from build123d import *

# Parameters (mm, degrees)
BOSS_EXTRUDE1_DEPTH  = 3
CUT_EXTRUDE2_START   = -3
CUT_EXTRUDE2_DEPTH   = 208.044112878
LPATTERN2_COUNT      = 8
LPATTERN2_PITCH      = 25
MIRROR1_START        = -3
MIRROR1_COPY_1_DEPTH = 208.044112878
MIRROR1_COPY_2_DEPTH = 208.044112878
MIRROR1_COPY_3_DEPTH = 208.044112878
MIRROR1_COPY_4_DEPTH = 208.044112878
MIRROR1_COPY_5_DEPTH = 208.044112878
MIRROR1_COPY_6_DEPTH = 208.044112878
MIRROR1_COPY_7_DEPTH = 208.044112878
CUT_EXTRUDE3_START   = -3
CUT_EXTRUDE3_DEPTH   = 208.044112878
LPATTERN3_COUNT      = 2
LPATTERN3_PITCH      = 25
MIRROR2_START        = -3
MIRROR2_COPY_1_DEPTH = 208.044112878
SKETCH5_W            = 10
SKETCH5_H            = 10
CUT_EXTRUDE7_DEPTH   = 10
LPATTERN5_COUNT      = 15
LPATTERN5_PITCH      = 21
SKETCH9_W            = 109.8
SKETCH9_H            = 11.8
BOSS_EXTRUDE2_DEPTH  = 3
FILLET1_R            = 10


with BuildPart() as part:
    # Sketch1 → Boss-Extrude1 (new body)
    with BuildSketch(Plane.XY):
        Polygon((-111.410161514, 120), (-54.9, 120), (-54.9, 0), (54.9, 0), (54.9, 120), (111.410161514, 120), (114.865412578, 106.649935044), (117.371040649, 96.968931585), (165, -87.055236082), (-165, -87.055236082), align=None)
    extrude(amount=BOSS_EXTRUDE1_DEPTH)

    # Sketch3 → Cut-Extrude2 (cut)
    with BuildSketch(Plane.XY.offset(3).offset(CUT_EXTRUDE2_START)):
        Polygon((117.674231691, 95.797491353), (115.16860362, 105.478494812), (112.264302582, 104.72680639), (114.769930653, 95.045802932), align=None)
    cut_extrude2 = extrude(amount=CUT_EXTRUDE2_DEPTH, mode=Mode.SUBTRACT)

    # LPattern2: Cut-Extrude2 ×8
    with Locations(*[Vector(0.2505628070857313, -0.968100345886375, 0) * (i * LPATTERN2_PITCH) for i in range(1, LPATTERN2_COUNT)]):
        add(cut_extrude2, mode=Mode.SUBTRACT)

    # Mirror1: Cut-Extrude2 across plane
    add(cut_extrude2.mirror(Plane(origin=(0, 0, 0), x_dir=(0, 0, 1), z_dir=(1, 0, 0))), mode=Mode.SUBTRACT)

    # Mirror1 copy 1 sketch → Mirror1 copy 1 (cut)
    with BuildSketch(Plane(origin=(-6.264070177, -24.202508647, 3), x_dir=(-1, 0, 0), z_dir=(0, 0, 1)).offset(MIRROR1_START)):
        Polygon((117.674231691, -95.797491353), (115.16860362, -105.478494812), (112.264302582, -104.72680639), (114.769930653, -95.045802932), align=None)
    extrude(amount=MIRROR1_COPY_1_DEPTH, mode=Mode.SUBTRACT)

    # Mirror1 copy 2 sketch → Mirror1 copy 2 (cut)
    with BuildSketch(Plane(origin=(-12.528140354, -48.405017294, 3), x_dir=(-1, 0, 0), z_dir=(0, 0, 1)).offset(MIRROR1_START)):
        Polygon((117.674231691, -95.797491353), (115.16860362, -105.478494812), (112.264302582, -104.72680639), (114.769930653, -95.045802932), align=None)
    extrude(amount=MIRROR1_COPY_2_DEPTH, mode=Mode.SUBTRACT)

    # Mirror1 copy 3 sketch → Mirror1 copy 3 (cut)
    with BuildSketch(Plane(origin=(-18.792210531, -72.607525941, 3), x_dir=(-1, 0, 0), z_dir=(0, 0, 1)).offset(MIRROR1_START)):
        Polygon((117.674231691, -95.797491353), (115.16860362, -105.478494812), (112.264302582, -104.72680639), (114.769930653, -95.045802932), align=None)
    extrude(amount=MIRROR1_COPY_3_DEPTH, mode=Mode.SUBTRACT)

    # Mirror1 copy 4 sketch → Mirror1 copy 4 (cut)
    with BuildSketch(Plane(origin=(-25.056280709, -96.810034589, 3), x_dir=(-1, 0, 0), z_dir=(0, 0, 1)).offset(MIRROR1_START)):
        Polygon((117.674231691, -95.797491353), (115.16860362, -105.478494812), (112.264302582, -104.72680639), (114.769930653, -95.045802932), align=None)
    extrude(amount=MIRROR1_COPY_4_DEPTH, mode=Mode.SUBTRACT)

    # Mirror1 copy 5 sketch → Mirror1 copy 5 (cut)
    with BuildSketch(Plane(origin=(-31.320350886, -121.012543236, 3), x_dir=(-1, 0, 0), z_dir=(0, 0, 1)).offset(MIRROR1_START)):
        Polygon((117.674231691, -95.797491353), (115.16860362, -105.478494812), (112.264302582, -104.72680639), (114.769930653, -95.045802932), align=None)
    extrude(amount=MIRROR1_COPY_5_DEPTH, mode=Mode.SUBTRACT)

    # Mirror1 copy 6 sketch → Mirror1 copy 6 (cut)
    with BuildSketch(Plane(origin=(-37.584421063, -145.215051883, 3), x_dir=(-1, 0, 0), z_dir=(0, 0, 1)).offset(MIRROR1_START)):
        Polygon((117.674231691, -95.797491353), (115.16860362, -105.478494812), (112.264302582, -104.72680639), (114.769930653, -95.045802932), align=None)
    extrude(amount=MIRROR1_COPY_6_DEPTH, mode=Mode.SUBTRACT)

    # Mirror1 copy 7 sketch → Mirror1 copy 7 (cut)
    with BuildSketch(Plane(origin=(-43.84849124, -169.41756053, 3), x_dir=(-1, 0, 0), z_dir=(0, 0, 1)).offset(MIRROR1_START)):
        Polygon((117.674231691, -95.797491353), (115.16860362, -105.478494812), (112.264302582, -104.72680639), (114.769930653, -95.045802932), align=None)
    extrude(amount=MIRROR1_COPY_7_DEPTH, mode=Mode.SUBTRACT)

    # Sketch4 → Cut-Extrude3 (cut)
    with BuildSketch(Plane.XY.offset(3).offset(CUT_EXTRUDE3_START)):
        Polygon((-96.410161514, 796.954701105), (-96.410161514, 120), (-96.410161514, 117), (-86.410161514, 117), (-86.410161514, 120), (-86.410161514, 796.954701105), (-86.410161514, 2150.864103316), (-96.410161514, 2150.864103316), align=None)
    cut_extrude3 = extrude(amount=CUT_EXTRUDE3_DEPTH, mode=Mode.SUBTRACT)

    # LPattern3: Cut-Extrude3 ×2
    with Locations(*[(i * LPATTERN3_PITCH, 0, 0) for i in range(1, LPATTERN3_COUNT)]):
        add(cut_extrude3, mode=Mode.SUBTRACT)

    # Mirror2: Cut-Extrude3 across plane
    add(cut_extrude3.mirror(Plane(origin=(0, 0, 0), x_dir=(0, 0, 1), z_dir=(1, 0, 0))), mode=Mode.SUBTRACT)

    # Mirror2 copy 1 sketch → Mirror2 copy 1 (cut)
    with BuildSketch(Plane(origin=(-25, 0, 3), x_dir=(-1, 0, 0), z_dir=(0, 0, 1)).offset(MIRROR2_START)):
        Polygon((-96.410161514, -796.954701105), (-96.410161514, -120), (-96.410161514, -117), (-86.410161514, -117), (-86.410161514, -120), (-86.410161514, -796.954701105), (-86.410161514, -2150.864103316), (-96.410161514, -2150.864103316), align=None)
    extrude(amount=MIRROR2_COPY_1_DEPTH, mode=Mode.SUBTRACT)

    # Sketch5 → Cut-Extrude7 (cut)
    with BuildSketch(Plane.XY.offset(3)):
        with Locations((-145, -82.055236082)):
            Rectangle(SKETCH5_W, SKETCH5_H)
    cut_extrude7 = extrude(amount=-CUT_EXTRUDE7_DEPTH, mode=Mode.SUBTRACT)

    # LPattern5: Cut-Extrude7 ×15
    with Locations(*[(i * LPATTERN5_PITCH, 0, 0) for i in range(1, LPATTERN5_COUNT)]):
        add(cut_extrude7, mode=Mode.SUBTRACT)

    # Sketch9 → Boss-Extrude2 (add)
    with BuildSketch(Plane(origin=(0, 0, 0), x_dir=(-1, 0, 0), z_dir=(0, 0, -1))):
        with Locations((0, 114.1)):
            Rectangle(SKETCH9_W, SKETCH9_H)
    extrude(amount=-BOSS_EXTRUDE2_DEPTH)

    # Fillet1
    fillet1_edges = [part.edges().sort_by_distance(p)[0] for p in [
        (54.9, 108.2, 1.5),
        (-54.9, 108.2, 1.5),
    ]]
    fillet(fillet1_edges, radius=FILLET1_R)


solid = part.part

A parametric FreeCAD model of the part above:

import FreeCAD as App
import Part
import Sketcher
from FreeCAD import Vector
Q = App.Units.Quantity


def edges_at(feature, points):
    """Names of the edges that pass closest to the given points."""
    edges = feature.Shape.Edges
    near = lambda p: min(range(len(edges)), key=lambda i: edges[i].distToShape(Part.Vertex(*p))[0])
    return sorted({f"Edge{near(p) + 1}" for p in points})

doc = App.newDocument("Part")
body = doc.addObject("PartDesign::Body", "Body")

sketch1 = doc.addObject("Sketcher::SketchObject", "Sketch")
body.addObject(sketch1)
sketch1.AttachmentSupport = (doc.XY_Plane, [""])
sketch1.MapMode = "FlatFace"
sketch1.addGeometry(Part.LineSegment(Vector(-54.9, 120, 0), Vector(-111.410162, 120, 0)), False)
sketch1.addGeometry(Part.LineSegment(Vector(-111.410162, 120, 0), Vector(-165, -87.055236, 0)), False)
sketch1.addGeometry(Part.LineSegment(Vector(-165, -87.055236, 0), Vector(165, -87.055236, 0)), False)
sketch1.addGeometry(Part.LineSegment(Vector(165, -87.055236, 0), Vector(117.371041, 96.968932, 0)), False)
sketch1.addGeometry(Part.LineSegment(Vector(117.371041, 96.968932, 0), Vector(114.865413, 106.649935, 0)), False)
sketch1.addGeometry(Part.LineSegment(Vector(114.865413, 106.649935, 0), Vector(111.410162, 120, 0)), False)
sketch1.addGeometry(Part.LineSegment(Vector(111.410162, 120, 0), Vector(54.9, 120, 0)), False)
sketch1.addGeometry(Part.LineSegment(Vector(54.9, 120, 0), Vector(54.9, 0, 0)), False)
sketch1.addGeometry(Part.LineSegment(Vector(54.9, 0, 0), Vector(-54.9, 0, 0)), False)
sketch1.addGeometry(Part.LineSegment(Vector(-54.9, 0, 0), Vector(-54.9, 120, 0)), False)
sketch1.addConstraint(Sketcher.Constraint("Coincident", 0, 2, 1, 1))
sketch1.addConstraint(Sketcher.Constraint("Coincident", 1, 2, 2, 1))
sketch1.addConstraint(Sketcher.Constraint("Coincident", 2, 2, 3, 1))
sketch1.addConstraint(Sketcher.Constraint("Coincident", 3, 2, 4, 1))
sketch1.addConstraint(Sketcher.Constraint("Coincident", 4, 2, 5, 1))
sketch1.addConstraint(Sketcher.Constraint("Coincident", 5, 2, 6, 1))
sketch1.addConstraint(Sketcher.Constraint("Coincident", 6, 2, 7, 1))
sketch1.addConstraint(Sketcher.Constraint("Coincident", 7, 2, 8, 1))
sketch1.addConstraint(Sketcher.Constraint("Coincident", 8, 2, 9, 1))
sketch1.addConstraint(Sketcher.Constraint("Coincident", 9, 2, 0, 1))
sketch1.addConstraint(Sketcher.Constraint("Horizontal", 0))
sketch1.addConstraint(Sketcher.Constraint("Horizontal", 2))
sketch1.addConstraint(Sketcher.Constraint("Horizontal", 6))
sketch1.addConstraint(Sketcher.Constraint("Vertical", 7))
sketch1.addConstraint(Sketcher.Constraint("Horizontal", 8))
sketch1.addConstraint(Sketcher.Constraint("Vertical", 9))
sketch1.addConstraint(Sketcher.Constraint("Symmetric", 7, 2, 8, 2, -1, 1))
sketch1.addConstraint(Sketcher.Constraint("Symmetric", 0, 2, 5, 2, -2))
sketch1.addConstraint(Sketcher.Constraint("Parallel", 3, 4))
sketch1.addConstraint(Sketcher.Constraint("Parallel", 4, 5))
sketch1.addConstraint(Sketcher.Constraint("DistanceX", 2, 1, 2, 2, Q("330 mm")))
sketch1.addConstraint(Sketcher.Constraint("DistanceY", 7, 2, 7, 1, Q("120 mm")))
sketch1.addConstraint(Sketcher.Constraint("Distance", 4, Q("10 mm")))
sketch1.addConstraint(Sketcher.Constraint("DistanceX", 8, 2, 8, 1, Q("109.8 mm")))
sketch1.addConstraint(Sketcher.Constraint("DistanceX", 1, 2, -1, 1, Q("165 mm")))
sketch1.addConstraint(Sketcher.Constraint("DistanceX", 0, 2, 0, 1, Q("56.510162 mm")))
sketch1.addConstraint(Sketcher.Constraint("Distance", 5, Q("13.78996 mm")))
sketch1.addConstraint(Sketcher.Constraint("DistanceX", -1, 1, 3, 2, Q("117.371041 mm")))
pad1 = doc.addObject("PartDesign::Pad", "Pad")
body.addObject(pad1)
pad1.Profile = sketch1
pad1.Length = 3

sketch2 = doc.addObject("Sketcher::SketchObject", "Sketch001")
body.addObject(sketch2)
sketch2.AttachmentSupport = (doc.XY_Plane, [""])
sketch2.MapMode = "FlatFace"
sketch2.addGeometry(Part.LineSegment(Vector(117.674232, 95.797491, 0), Vector(115.168604, 105.478495, 0)), False)
sketch2.addGeometry(Part.LineSegment(Vector(115.168604, 105.478495, 0), Vector(112.264303, 104.726806, 0)), False)
sketch2.addGeometry(Part.LineSegment(Vector(112.264303, 104.726806, 0), Vector(114.769931, 95.045803, 0)), False)
sketch2.addGeometry(Part.LineSegment(Vector(114.769931, 95.045803, 0), Vector(117.674232, 95.797491, 0)), False)
sketch2.addConstraint(Sketcher.Constraint("Coincident", 0, 2, 1, 1))
sketch2.addConstraint(Sketcher.Constraint("Coincident", 1, 2, 2, 1))
sketch2.addConstraint(Sketcher.Constraint("Coincident", 2, 2, 3, 1))
sketch2.addConstraint(Sketcher.Constraint("Coincident", 3, 2, 0, 1))
sketch2.addConstraint(Sketcher.Constraint("Perpendicular", 0, 1))
sketch2.addConstraint(Sketcher.Constraint("Perpendicular", 1, 2))
sketch2.addConstraint(Sketcher.Constraint("Perpendicular", 2, 3))
sketch2.addConstraint(Sketcher.Constraint("Distance", 0, Q("10 mm")))
sketch2.addConstraint(Sketcher.Constraint("Distance", 1, Q("3 mm")))
sketch2.addConstraint(Sketcher.Constraint("DistanceX", 1, 2, 0, 2, Q("2.904301 mm")))
sketch2.addConstraint(Sketcher.Constraint("DistanceX", -1, 1, 2, 2, Q("114.769931 mm")))
sketch2.addConstraint(Sketcher.Constraint("DistanceY", -1, 1, 3, 2, Q("95.797491 mm")))
pocket1 = doc.addObject("PartDesign::Pocket", "Pocket")
body.addObject(pocket1)
pocket1.Profile = sketch2
pocket1.Length = 208.044113
pocket1.Reversed = True
doc.recompute()

datumline = doc.addObject("PartDesign::Line", "DatumLine")
body.addObject(datumline)
datumline.Placement = App.Placement(Vector(0, 0, 0), App.Rotation(Vector(0, 0, 1), Vector(0.250562807, -0.968100346, 0)))
linearpattern = doc.addObject("PartDesign::LinearPattern", "LinearPattern")
body.addObject(linearpattern)
linearpattern.Originals = [pocket1]
linearpattern.Direction = (datumline, [""])
linearpattern.Mode = "offset"
linearpattern.Offset = 25
linearpattern.Occurrences = 8
body.Tip = linearpattern
doc.recompute()

mirrored = doc.addObject("PartDesign::Mirrored", "Mirrored")
body.addObject(mirrored)
mirrored.Originals = [pocket1]
mirrored.MirrorPlane = (doc.YZ_Plane, [""])
body.Tip = mirrored

sketch3 = doc.addObject("Sketcher::SketchObject", "Sketch002")
body.addObject(sketch3)
sketch3.AttachmentSupport = (doc.XY_Plane, [""])
sketch3.MapMode = "FlatFace"
sketch3.addGeometry(Part.LineSegment(Vector(-121.432674, 81.275986, 0), Vector(-123.938302, 71.594983, 0)), False)
sketch3.addGeometry(Part.LineSegment(Vector(-123.938302, 71.594983, 0), Vector(-121.034001, 70.843294, 0)), False)
sketch3.addGeometry(Part.LineSegment(Vector(-121.034001, 70.843294, 0), Vector(-118.528373, 80.524298, 0)), False)
sketch3.addGeometry(Part.LineSegment(Vector(-118.528373, 80.524298, 0), Vector(-121.432674, 81.275986, 0)), False)
sketch3.addConstraint(Sketcher.Constraint("Coincident", 0, 2, 1, 1))
sketch3.addConstraint(Sketcher.Constraint("Coincident", 1, 2, 2, 1))
sketch3.addConstraint(Sketcher.Constraint("Coincident", 2, 2, 3, 1))
sketch3.addConstraint(Sketcher.Constraint("Coincident", 3, 2, 0, 1))
sketch3.addConstraint(Sketcher.Constraint("Perpendicular", 0, 1))
sketch3.addConstraint(Sketcher.Constraint("Perpendicular", 1, 2))
sketch3.addConstraint(Sketcher.Constraint("Perpendicular", 2, 3))
sketch3.addConstraint(Sketcher.Constraint("Distance", 0, Q("10 mm")))
sketch3.addConstraint(Sketcher.Constraint("Distance", 1, Q("3 mm")))
sketch3.addConstraint(Sketcher.Constraint("DistanceX", 1, 2, -1, 1, Q("121.034001 mm")))
sketch3.addConstraint(Sketcher.Constraint("DistanceX", 0, 2, -1, 1, Q("123.938302 mm")))
sketch3.addConstraint(Sketcher.Constraint("DistanceY", -1, 1, 0, 2, Q("71.594983 mm")))
pocket2 = doc.addObject("PartDesign::Pocket", "Pocket001")
body.addObject(pocket2)
pocket2.Profile = sketch3
pocket2.Length = 208.044113
pocket2.Reversed = True

sketch4 = doc.addObject("Sketcher::SketchObject", "Sketch003")
body.addObject(sketch4)
sketch4.AttachmentSupport = (doc.XY_Plane, [""])
sketch4.MapMode = "FlatFace"
sketch4.addGeometry(Part.LineSegment(Vector(-127.696744, 57.073478, 0), Vector(-130.202372, 47.392474, 0)), False)
sketch4.addGeometry(Part.LineSegment(Vector(-130.202372, 47.392474, 0), Vector(-127.298071, 46.640786, 0)), False)
sketch4.addGeometry(Part.LineSegment(Vector(-127.298071, 46.640786, 0), Vector(-124.792443, 56.321789, 0)), False)
sketch4.addGeometry(Part.LineSegment(Vector(-124.792443, 56.321789, 0), Vector(-127.696744, 57.073478, 0)), False)
sketch4.addConstraint(Sketcher.Constraint("Coincident", 0, 2, 1, 1))
sketch4.addConstraint(Sketcher.Constraint("Coincident", 1, 2, 2, 1))
sketch4.addConstraint(Sketcher.Constraint("Coincident", 2, 2, 3, 1))
sketch4.addConstraint(Sketcher.Constraint("Coincident", 3, 2, 0, 1))
sketch4.addConstraint(Sketcher.Constraint("Perpendicular", 0, 1))
sketch4.addConstraint(Sketcher.Constraint("Perpendicular", 1, 2))
sketch4.addConstraint(Sketcher.Constraint("Perpendicular", 2, 3))
sketch4.addConstraint(Sketcher.Constraint("Distance", 0, Q("10 mm")))
sketch4.addConstraint(Sketcher.Constraint("Distance", 1, Q("3 mm")))
sketch4.addConstraint(Sketcher.Constraint("DistanceX", 0, 2, 1, 2, Q("2.904301 mm")))
sketch4.addConstraint(Sketcher.Constraint("DistanceX", 1, 2, -1, 1, Q("127.298071 mm")))
sketch4.addConstraint(Sketcher.Constraint("DistanceY", -1, 1, 2, 2, Q("56.321789 mm")))
pocket3 = doc.addObject("PartDesign::Pocket", "Pocket002")
body.addObject(pocket3)
pocket3.Profile = sketch4
pocket3.Length = 208.044113
pocket3.Reversed = True

sketch5 = doc.addObject("Sketcher::SketchObject", "Sketch004")
body.addObject(sketch5)
sketch5.AttachmentSupport = (doc.XY_Plane, [""])
sketch5.MapMode = "FlatFace"
sketch5.addGeometry(Part.LineSegment(Vector(-133.960814, 32.870969, 0), Vector(-136.466442, 23.189965, 0)), False)
sketch5.addGeometry(Part.LineSegment(Vector(-136.466442, 23.189965, 0), Vector(-133.562141, 22.438277, 0)), False)
sketch5.addGeometry(Part.LineSegment(Vector(-133.562141, 22.438277, 0), Vector(-131.056513, 32.11928, 0)), False)
sketch5.addGeometry(Part.LineSegment(Vector(-131.056513, 32.11928, 0), Vector(-133.960814, 32.870969, 0)), False)
sketch5.addConstraint(Sketcher.Constraint("Coincident", 0, 2, 1, 1))
sketch5.addConstraint(Sketcher.Constraint("Coincident", 1, 2, 2, 1))
sketch5.addConstraint(Sketcher.Constraint("Coincident", 2, 2, 3, 1))
sketch5.addConstraint(Sketcher.Constraint("Coincident", 3, 2, 0, 1))
sketch5.addConstraint(Sketcher.Constraint("Perpendicular", 0, 1))
sketch5.addConstraint(Sketcher.Constraint("Perpendicular", 1, 2))
sketch5.addConstraint(Sketcher.Constraint("Perpendicular", 2, 3))
sketch5.addConstraint(Sketcher.Constraint("Distance", 0, Q("10 mm")))
sketch5.addConstraint(Sketcher.Constraint("Distance", 1, Q("3 mm")))
sketch5.addConstraint(Sketcher.Constraint("DistanceX", 0, 2, 1, 2, Q("2.904301 mm")))
sketch5.addConstraint(Sketcher.Constraint("DistanceX", 1, 2, -1, 1, Q("133.562141 mm")))
sketch5.addConstraint(Sketcher.Constraint("DistanceY", -1, 1, 2, 2, Q("32.11928 mm")))
pocket4 = doc.addObject("PartDesign::Pocket", "Pocket003")
body.addObject(pocket4)
pocket4.Profile = sketch5
pocket4.Length = 208.044113
pocket4.Reversed = True

sketch6 = doc.addObject("Sketcher::SketchObject", "Sketch005")
body.addObject(sketch6)
sketch6.AttachmentSupport = (doc.XY_Plane, [""])
sketch6.MapMode = "FlatFace"
sketch6.addGeometry(Part.LineSegment(Vector(-140.224884, 8.66846, 0), Vector(-142.730512, -1.012543, 0)), False)
sketch6.addGeometry(Part.LineSegment(Vector(-142.730512, -1.012543, 0), Vector(-139.826211, -1.764232, 0)), False)
sketch6.addGeometry(Part.LineSegment(Vector(-139.826211, -1.764232, 0), Vector(-137.320583, 7.916772, 0)), False)
sketch6.addGeometry(Part.LineSegment(Vector(-137.320583, 7.916772, 0), Vector(-140.224884, 8.66846, 0)), False)
sketch6.addConstraint(Sketcher.Constraint("Coincident", 0, 2, 1, 1))
sketch6.addConstraint(Sketcher.Constraint("Coincident", 1, 2, 2, 1))
sketch6.addConstraint(Sketcher.Constraint("Coincident", 2, 2, 3, 1))
sketch6.addConstraint(Sketcher.Constraint("Coincident", 3, 2, 0, 1))
sketch6.addConstraint(Sketcher.Constraint("Perpendicular", 0, 1))
sketch6.addConstraint(Sketcher.Constraint("Perpendicular", 1, 2))
sketch6.addConstraint(Sketcher.Constraint("Perpendicular", 2, 3))
sketch6.addConstraint(Sketcher.Constraint("Distance", 0, Q("10 mm")))
sketch6.addConstraint(Sketcher.Constraint("Distance", 1, Q("3 mm")))
sketch6.addConstraint(Sketcher.Constraint("DistanceX", 0, 2, 1, 2, Q("2.904301 mm")))
sketch6.addConstraint(Sketcher.Constraint("DistanceX", 1, 2, -1, 1, Q("139.826211 mm")))
sketch6.addConstraint(Sketcher.Constraint("DistanceY", 1, 2, -1, 1, Q("1.764232 mm")))
pocket5 = doc.addObject("PartDesign::Pocket", "Pocket004")
body.addObject(pocket5)
pocket5.Profile = sketch6
pocket5.Length = 208.044113
pocket5.Reversed = True

sketch7 = doc.addObject("Sketcher::SketchObject", "Sketch006")
body.addObject(sketch7)
sketch7.AttachmentSupport = (doc.XY_Plane, [""])
sketch7.MapMode = "FlatFace"
sketch7.addGeometry(Part.LineSegment(Vector(-146.488955, -15.534048, 0), Vector(-148.994583, -25.215052, 0)), False)
sketch7.addGeometry(Part.LineSegment(Vector(-148.994583, -25.215052, 0), Vector(-146.090282, -25.96674, 0)), False)
sketch7.addGeometry(Part.LineSegment(Vector(-146.090282, -25.96674, 0), Vector(-143.584653, -16.285737, 0)), False)
sketch7.addGeometry(Part.LineSegment(Vector(-143.584653, -16.285737, 0), Vector(-146.488955, -15.534048, 0)), False)
sketch7.addConstraint(Sketcher.Constraint("Coincident", 0, 2, 1, 1))
sketch7.addConstraint(Sketcher.Constraint("Coincident", 1, 2, 2, 1))
sketch7.addConstraint(Sketcher.Constraint("Coincident", 2, 2, 3, 1))
sketch7.addConstraint(Sketcher.Constraint("Coincident", 3, 2, 0, 1))
sketch7.addConstraint(Sketcher.Constraint("Perpendicular", 0, 1))
sketch7.addConstraint(Sketcher.Constraint("Perpendicular", 1, 2))
sketch7.addConstraint(Sketcher.Constraint("Perpendicular", 2, 3))
sketch7.addConstraint(Sketcher.Constraint("Distance", 0, Q("10 mm")))
sketch7.addConstraint(Sketcher.Constraint("Distance", 1, Q("3 mm")))
sketch7.addConstraint(Sketcher.Constraint("DistanceX", 0, 2, 1, 2, Q("2.904301 mm")))
sketch7.addConstraint(Sketcher.Constraint("DistanceY", 0, 2, -1, 1, Q("25.215052 mm")))
sketch7.addConstraint(Sketcher.Constraint("DistanceX", 1, 2, -1, 1, Q("146.090282 mm")))
pocket6 = doc.addObject("PartDesign::Pocket", "Pocket005")
body.addObject(pocket6)
pocket6.Profile = sketch7
pocket6.Length = 208.044113
pocket6.Reversed = True

sketch8 = doc.addObject("Sketcher::SketchObject", "Sketch007")
body.addObject(sketch8)
sketch8.AttachmentSupport = (doc.XY_Plane, [""])
sketch8.MapMode = "FlatFace"
sketch8.addGeometry(Part.LineSegment(Vector(-152.753025, -39.736557, 0), Vector(-155.258653, -49.417561, 0)), False)
sketch8.addGeometry(Part.LineSegment(Vector(-155.258653, -49.417561, 0), Vector(-152.354352, -50.169249, 0)), False)
sketch8.addGeometry(Part.LineSegment(Vector(-152.354352, -50.169249, 0), Vector(-149.848724, -40.488245, 0)), False)
sketch8.addGeometry(Part.LineSegment(Vector(-149.848724, -40.488245, 0), Vector(-152.753025, -39.736557, 0)), False)
sketch8.addConstraint(Sketcher.Constraint("Coincident", 0, 2, 1, 1))
sketch8.addConstraint(Sketcher.Constraint("Coincident", 1, 2, 2, 1))
sketch8.addConstraint(Sketcher.Constraint("Coincident", 2, 2, 3, 1))
sketch8.addConstraint(Sketcher.Constraint("Coincident", 3, 2, 0, 1))
sketch8.addConstraint(Sketcher.Constraint("Perpendicular", 0, 1))
sketch8.addConstraint(Sketcher.Constraint("Perpendicular", 1, 2))
sketch8.addConstraint(Sketcher.Constraint("Perpendicular", 2, 3))
sketch8.addConstraint(Sketcher.Constraint("Distance", 0, Q("10 mm")))
sketch8.addConstraint(Sketcher.Constraint("Distance", 1, Q("3 mm")))
sketch8.addConstraint(Sketcher.Constraint("DistanceX", 0, 2, 1, 2, Q("2.904301 mm")))
sketch8.addConstraint(Sketcher.Constraint("DistanceY", 0, 2, -1, 1, Q("49.417561 mm")))
sketch8.addConstraint(Sketcher.Constraint("DistanceX", 1, 2, -1, 1, Q("152.354352 mm")))
pocket7 = doc.addObject("PartDesign::Pocket", "Pocket006")
body.addObject(pocket7)
pocket7.Profile = sketch8
pocket7.Length = 208.044113
pocket7.Reversed = True

sketch9 = doc.addObject("Sketcher::SketchObject", "Sketch008")
body.addObject(sketch9)
sketch9.AttachmentSupport = (doc.XY_Plane, [""])
sketch9.MapMode = "FlatFace"
sketch9.addGeometry(Part.LineSegment(Vector(-159.017095, -63.939066, 0), Vector(-161.522723, -73.620069, 0)), False)
sketch9.addGeometry(Part.LineSegment(Vector(-161.522723, -73.620069, 0), Vector(-158.618422, -74.371758, 0)), False)
sketch9.addGeometry(Part.LineSegment(Vector(-158.618422, -74.371758, 0), Vector(-156.112794, -64.690754, 0)), False)
sketch9.addGeometry(Part.LineSegment(Vector(-156.112794, -64.690754, 0), Vector(-159.017095, -63.939066, 0)), False)
sketch9.addConstraint(Sketcher.Constraint("Coincident", 0, 2, 1, 1))
sketch9.addConstraint(Sketcher.Constraint("Coincident", 1, 2, 2, 1))
sketch9.addConstraint(Sketcher.Constraint("Coincident", 2, 2, 3, 1))
sketch9.addConstraint(Sketcher.Constraint("Coincident", 3, 2, 0, 1))
sketch9.addConstraint(Sketcher.Constraint("Perpendicular", 0, 1))
sketch9.addConstraint(Sketcher.Constraint("Perpendicular", 1, 2))
sketch9.addConstraint(Sketcher.Constraint("Perpendicular", 2, 3))
sketch9.addConstraint(Sketcher.Constraint("Distance", 0, Q("10 mm")))
sketch9.addConstraint(Sketcher.Constraint("Distance", 1, Q("3 mm")))
sketch9.addConstraint(Sketcher.Constraint("DistanceX", 0, 2, 1, 2, Q("2.904301 mm")))
sketch9.addConstraint(Sketcher.Constraint("DistanceY", 0, 2, -1, 1, Q("73.620069 mm")))
sketch9.addConstraint(Sketcher.Constraint("DistanceX", 1, 2, -1, 1, Q("158.618422 mm")))
pocket8 = doc.addObject("PartDesign::Pocket", "Pocket007")
body.addObject(pocket8)
pocket8.Profile = sketch9
pocket8.Length = 208.044113
pocket8.Reversed = True

sketch10 = doc.addObject("Sketcher::SketchObject", "Sketch009")
body.addObject(sketch10)
sketch10.AttachmentSupport = (doc.XY_Plane, [""])
sketch10.MapMode = "FlatFace"
sketch10.addGeometry(Part.LineSegment(Vector(-96.410162, 117, 0), Vector(-86.410162, 117, 0)), False)
sketch10.addGeometry(Part.LineSegment(Vector(-86.410162, 117, 0), Vector(-86.410162, 2150.864103, 0)), False)
sketch10.addGeometry(Part.LineSegment(Vector(-86.410162, 2150.864103, 0), Vector(-96.410162, 2150.864103, 0)), False)
sketch10.addGeometry(Part.LineSegment(Vector(-96.410162, 2150.864103, 0), Vector(-96.410162, 117, 0)), False)
sketch10.addConstraint(Sketcher.Constraint("Coincident", 0, 2, 1, 1))
sketch10.addConstraint(Sketcher.Constraint("Coincident", 1, 2, 2, 1))
sketch10.addConstraint(Sketcher.Constraint("Coincident", 2, 2, 3, 1))
sketch10.addConstraint(Sketcher.Constraint("Coincident", 3, 2, 0, 1))
sketch10.addConstraint(Sketcher.Constraint("Horizontal", 0))
sketch10.addConstraint(Sketcher.Constraint("Vertical", 1))
sketch10.addConstraint(Sketcher.Constraint("Horizontal", 2))
sketch10.addConstraint(Sketcher.Constraint("Vertical", 3))
sketch10.addConstraint(Sketcher.Constraint("DistanceX", 0, 1, 0, 2, Q("10 mm")))
sketch10.addConstraint(Sketcher.Constraint("DistanceY", -1, 1, 0, 2, Q("117 mm")))
sketch10.addConstraint(Sketcher.Constraint("DistanceY", 1, 1, 1, 2, Q("2033.864103 mm")))
sketch10.addConstraint(Sketcher.Constraint("DistanceX", 0, 2, -1, 1, Q("86.410162 mm")))
pocket9 = doc.addObject("PartDesign::Pocket", "Pocket008")
body.addObject(pocket9)
pocket9.Profile = sketch10
pocket9.Length = 208.044113
pocket9.Reversed = True
doc.recompute()

linearpattern2 = doc.addObject("PartDesign::LinearPattern", "LinearPattern001")
body.addObject(linearpattern2)
linearpattern2.Originals = [pocket9]
linearpattern2.Direction = (doc.X_Axis, [""])
linearpattern2.Mode = "offset"
linearpattern2.Offset = 25
linearpattern2.Occurrences = 2
body.Tip = linearpattern2
doc.recompute()

mirrored2 = doc.addObject("PartDesign::Mirrored", "Mirrored001")
body.addObject(mirrored2)
mirrored2.Originals = [pocket9]
mirrored2.MirrorPlane = (doc.YZ_Plane, [""])
body.Tip = mirrored2

sketch11 = doc.addObject("Sketcher::SketchObject", "Sketch010")
body.addObject(sketch11)
sketch11.AttachmentSupport = (doc.XY_Plane, [""])
sketch11.MapMode = "FlatFace"
sketch11.addGeometry(Part.LineSegment(Vector(71.410162, 117, 0), Vector(71.410162, 2150.864103, 0)), False)
sketch11.addGeometry(Part.LineSegment(Vector(71.410162, 2150.864103, 0), Vector(61.410162, 2150.864103, 0)), False)
sketch11.addGeometry(Part.LineSegment(Vector(61.410162, 2150.864103, 0), Vector(61.410162, 117, 0)), False)
sketch11.addGeometry(Part.LineSegment(Vector(61.410162, 117, 0), Vector(71.410162, 117, 0)), False)
sketch11.addConstraint(Sketcher.Constraint("Coincident", 0, 2, 1, 1))
sketch11.addConstraint(Sketcher.Constraint("Coincident", 1, 2, 2, 1))
sketch11.addConstraint(Sketcher.Constraint("Coincident", 2, 2, 3, 1))
sketch11.addConstraint(Sketcher.Constraint("Coincident", 3, 2, 0, 1))
sketch11.addConstraint(Sketcher.Constraint("Vertical", 0))
sketch11.addConstraint(Sketcher.Constraint("Horizontal", 1))
sketch11.addConstraint(Sketcher.Constraint("Vertical", 2))
sketch11.addConstraint(Sketcher.Constraint("Horizontal", 3))
sketch11.addConstraint(Sketcher.Constraint("DistanceX", 1, 2, 1, 1, Q("10 mm")))
sketch11.addConstraint(Sketcher.Constraint("DistanceY", -1, 1, 2, 2, Q("117 mm")))
sketch11.addConstraint(Sketcher.Constraint("DistanceY", 0, 1, 0, 2, Q("2033.864103 mm")))
sketch11.addConstraint(Sketcher.Constraint("DistanceX", -1, 1, 0, 2, Q("71.410162 mm")))
pocket10 = doc.addObject("PartDesign::Pocket", "Pocket009")
body.addObject(pocket10)
pocket10.Profile = sketch11
pocket10.Length = 208.044113
pocket10.Reversed = True

sketch12 = doc.addObject("Sketcher::SketchObject", "Sketch011")
body.addObject(sketch12)
sketch12.AttachmentSupport = (doc.XY_Plane, [""])
sketch12.MapMode = "FlatFace"
sketch12.AttachmentOffset = App.Placement(Vector(0, 0, 3), App.Rotation())
sketch12.addGeometry(Part.LineSegment(Vector(-150, -77.055236, 0), Vector(-150, -87.055236, 0)), False)
sketch12.addGeometry(Part.LineSegment(Vector(-150, -87.055236, 0), Vector(-140, -87.055236, 0)), False)
sketch12.addGeometry(Part.LineSegment(Vector(-140, -87.055236, 0), Vector(-140, -77.055236, 0)), False)
sketch12.addGeometry(Part.LineSegment(Vector(-140, -77.055236, 0), Vector(-150, -77.055236, 0)), False)
sketch12.addConstraint(Sketcher.Constraint("Coincident", 0, 2, 1, 1))
sketch12.addConstraint(Sketcher.Constraint("Coincident", 1, 2, 2, 1))
sketch12.addConstraint(Sketcher.Constraint("Coincident", 2, 2, 3, 1))
sketch12.addConstraint(Sketcher.Constraint("Coincident", 3, 2, 0, 1))
sketch12.addConstraint(Sketcher.Constraint("Vertical", 0))
sketch12.addConstraint(Sketcher.Constraint("Horizontal", 1))
sketch12.addConstraint(Sketcher.Constraint("Vertical", 2))
sketch12.addConstraint(Sketcher.Constraint("Horizontal", 3))
sketch12.addConstraint(Sketcher.Constraint("Equal", 3, 0))
sketch12.addConstraint(Sketcher.Constraint("DistanceX", 1, 1, 1, 2, Q("10 mm")))
sketch12.addConstraint(Sketcher.Constraint("DistanceX", 0, 2, -1, 1, Q("150 mm")))
sketch12.addConstraint(Sketcher.Constraint("DistanceY", 0, 2, -1, 1, Q("87.055236 mm")))
pocket11 = doc.addObject("PartDesign::Pocket", "Pocket010")
body.addObject(pocket11)
pocket11.Profile = sketch12
pocket11.Length = 10
doc.recompute()

linearpattern3 = doc.addObject("PartDesign::LinearPattern", "LinearPattern002")
body.addObject(linearpattern3)
linearpattern3.Originals = [pocket11]
linearpattern3.Direction = (doc.X_Axis, [""])
linearpattern3.Mode = "offset"
linearpattern3.Offset = 21
linearpattern3.Occurrences = 15
body.Tip = linearpattern3

sketch13 = doc.addObject("Sketcher::SketchObject", "Sketch012")
body.addObject(sketch13)
sketch13.AttachmentSupport = (doc.XY_Plane, [""])
sketch13.MapMode = "FlatFace"
sketch13.addGeometry(Part.LineSegment(Vector(54.9, 120, 0), Vector(54.9, 108.2, 0)), False)
sketch13.addGeometry(Part.LineSegment(Vector(54.9, 108.2, 0), Vector(-54.9, 108.2, 0)), False)
sketch13.addGeometry(Part.LineSegment(Vector(-54.9, 108.2, 0), Vector(-54.9, 120, 0)), False)
sketch13.addGeometry(Part.LineSegment(Vector(-54.9, 120, 0), Vector(54.9, 120, 0)), False)
sketch13.addConstraint(Sketcher.Constraint("Coincident", 0, 2, 1, 1))
sketch13.addConstraint(Sketcher.Constraint("Coincident", 1, 2, 2, 1))
sketch13.addConstraint(Sketcher.Constraint("Coincident", 2, 2, 3, 1))
sketch13.addConstraint(Sketcher.Constraint("Coincident", 3, 2, 0, 1))
sketch13.addConstraint(Sketcher.Constraint("Vertical", 0))
sketch13.addConstraint(Sketcher.Constraint("Horizontal", 1))
sketch13.addConstraint(Sketcher.Constraint("Vertical", 2))
sketch13.addConstraint(Sketcher.Constraint("Horizontal", 3))
sketch13.addConstraint(Sketcher.Constraint("DistanceX", 1, 2, 1, 1, Q("109.8 mm")))
sketch13.addConstraint(Sketcher.Constraint("DistanceY", 0, 2, 0, 1, Q("11.8 mm")))
sketch13.addConstraint(Sketcher.Constraint("DistanceY", -1, 1, 2, 2, Q("120 mm")))
sketch13.addConstraint(Sketcher.Constraint("DistanceX", -1, 1, 0, 2, Q("54.9 mm")))
pad2 = doc.addObject("PartDesign::Pad", "Pad001")
body.addObject(pad2)
pad2.Profile = sketch13
pad2.Length = 3
doc.recompute()

fillet = doc.addObject("PartDesign::Fillet", "Fillet")
body.addObject(fillet)
fillet.Base = (pad2, edges_at(pad2, [(54.9, 108.2, 1.5), (-54.9, 108.2, 1.5)]))
fillet.Radius = 10

doc.recompute()
